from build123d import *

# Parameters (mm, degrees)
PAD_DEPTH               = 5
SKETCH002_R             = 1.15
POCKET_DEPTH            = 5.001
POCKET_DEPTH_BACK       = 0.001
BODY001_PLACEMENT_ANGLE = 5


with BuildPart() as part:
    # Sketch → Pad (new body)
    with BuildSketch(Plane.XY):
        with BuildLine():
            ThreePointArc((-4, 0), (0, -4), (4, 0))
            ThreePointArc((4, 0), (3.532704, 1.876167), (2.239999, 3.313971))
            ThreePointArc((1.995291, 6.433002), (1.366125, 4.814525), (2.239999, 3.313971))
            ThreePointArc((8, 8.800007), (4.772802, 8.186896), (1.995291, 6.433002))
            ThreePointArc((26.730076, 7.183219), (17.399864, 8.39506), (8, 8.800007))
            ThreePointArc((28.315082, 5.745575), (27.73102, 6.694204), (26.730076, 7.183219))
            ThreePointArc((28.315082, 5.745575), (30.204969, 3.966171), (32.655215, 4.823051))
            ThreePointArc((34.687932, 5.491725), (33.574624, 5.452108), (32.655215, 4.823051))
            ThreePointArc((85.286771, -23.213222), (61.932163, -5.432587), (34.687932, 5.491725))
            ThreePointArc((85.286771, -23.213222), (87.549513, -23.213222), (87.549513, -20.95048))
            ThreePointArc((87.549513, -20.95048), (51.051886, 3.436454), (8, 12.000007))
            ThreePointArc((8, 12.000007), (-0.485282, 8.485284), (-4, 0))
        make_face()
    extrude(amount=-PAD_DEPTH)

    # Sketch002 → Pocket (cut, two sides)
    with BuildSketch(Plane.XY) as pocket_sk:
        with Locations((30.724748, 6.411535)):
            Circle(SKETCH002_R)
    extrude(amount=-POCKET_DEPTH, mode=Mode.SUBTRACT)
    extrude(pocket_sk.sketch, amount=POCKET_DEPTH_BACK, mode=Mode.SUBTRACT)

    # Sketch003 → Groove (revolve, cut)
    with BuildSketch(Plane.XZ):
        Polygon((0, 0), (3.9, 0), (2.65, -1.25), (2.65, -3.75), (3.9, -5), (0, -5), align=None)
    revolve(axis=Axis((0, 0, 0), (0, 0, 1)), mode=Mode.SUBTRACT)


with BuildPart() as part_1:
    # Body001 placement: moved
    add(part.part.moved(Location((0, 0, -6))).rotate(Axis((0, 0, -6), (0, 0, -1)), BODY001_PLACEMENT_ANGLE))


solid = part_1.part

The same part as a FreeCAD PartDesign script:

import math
import FreeCAD as App
import Part
import Sketcher
from FreeCAD import Vector
Q = App.Units.Quantity


def add_polygon(sketch, points):
    """Adds a closed chain of lines whose ends are joined by coincident constraints."""
    first, n = sketch.GeometryCount, len(points)
    for a, b in zip(points, points[1:] + points[:1]):
        sketch.addGeometry(Part.LineSegment(App.Vector(*a, 0), App.Vector(*b, 0)), False)
    for i in range(n):
        sketch.addConstraint(Sketcher.Constraint("Coincident", first + i, 2, first + (i + 1) % n, 1))

doc = App.newDocument("Part")
body = doc.addObject("PartDesign::Body", "Body")

# Sketch on XY plane
sketch1 = body.newObject("Sketcher::SketchObject", "Sketch")
sketch1.AttachmentSupport = (doc.getObject("XY_Plane"), [""])
sketch1.MapMode = "FlatFace"
sketch1.addGeometry(Part.ArcOfCircle(Part.Circle(Vector(0, 0, 0), Vector(0, 0, 1), 4), math.radians(180), math.radians(360)), False)
sketch1.addGeometry(Part.ArcOfCircle(Part.Circle(Vector(0.000001, 0, 0), Vector(0, 0, 1), 3.999999), math.radians(-0.000002), math.radians(55.944224)), False)
sketch1.addGeometry(Part.ArcOfCircle(Part.Circle(Vector(3.359998, 4.970957, 0), Vector(0, 0, 1), 2), math.radians(133.027826), math.radians(235.944239)), False)
sketch1.addGeometry(Part.ArcOfCircle(Part.Circle(Vector(8.000009, -0.000006, 0), Vector(0, 0, 1), 8.800013), math.radians(90.000058), math.radians(133.027812)), False)
sketch1.addGeometry(Part.ArcOfCircle(Part.Circle(Vector(8.000004, -100.499914, 0), Vector(0, 0, 1), 109.299921), math.radians(80.132865), math.radians(90.000002)), False)
sketch1.addGeometry(Part.ArcOfCircle(Part.Circle(Vector(26.387349, 5.212803, 0), Vector(0, 0, 1), 2), math.radians(15.449324), math.radians(80.132891)), False)
sketch1.addGeometry(Part.ArcOfCircle(Part.Circle(Vector(30.724748, 6.41154, 0), Vector(0, 0, 1), 2.5), math.radians(-164.550674), math.radians(-39.449333)), False)
sketch1.addGeometry(Part.ArcOfCircle(Part.Circle(Vector(34.199589, 3.552263, 0), Vector(0, 0, 1), 1.999998), math.radians(75.867104), math.radians(140.550734)), False)
sketch1.addGeometry(Part.ArcOfCircle(Part.Circle(Vector(7.999994, -100.500002, 0), Vector(0, 0, 1), 109.30001), math.radians(45.000001), math.radians(75.867128)), False)
sketch1.addGeometry(Part.ArcOfCircle(Part.Circle(Vector(86.418142, -22.081851, 0), Vector(0, 0, 1), 1.6), math.radians(-135), math.radians(45)), False)
sketch1.addGeometry(Part.ArcOfCircle(Part.Circle(Vector(7.999998, -100.499999, 0), Vector(0, 0, 1), 112.500006), math.radians(45.000001), math.radians(89.999999)), False)
sketch1.addGeometry(Part.ArcOfCircle(Part.Circle(Vector(8.000006, 0.000001, 0), Vector(0, 0, 1), 12.000006), math.radians(90.000031), math.radians(180.000003)), False)
sketch1.addConstraint(Sketcher.Constraint("Coincident", 0, 2, 1, 1))
sketch1.addConstraint(Sketcher.Constraint("Coincident", 1, 2, 2, 2))
sketch1.addConstraint(Sketcher.Constraint("Coincident", 2, 1, 3, 2))
sketch1.addConstraint(Sketcher.Constraint("Coincident", 3, 1, 4, 2))
sketch1.addConstraint(Sketcher.Constraint("Coincident", 4, 1, 5, 2))
sketch1.addConstraint(Sketcher.Constraint("Coincident", 5, 1, 6, 1))
sketch1.addConstraint(Sketcher.Constraint("Coincident", 6, 2, 7, 2))
sketch1.addConstraint(Sketcher.Constraint("Coincident", 7, 1, 8, 2))
sketch1.addConstraint(Sketcher.Constraint("Coincident", 8, 1, 9, 1))
sketch1.addConstraint(Sketcher.Constraint("Coincident", 9, 2, 10, 1))
sketch1.addConstraint(Sketcher.Constraint("Coincident", 10, 2, 11, 1))
sketch1.addConstraint(Sketcher.Constraint("Coincident", 11, 2, 0, 1))
sketch1.addConstraint(Sketcher.Constraint("Coincident", 0, 3, -1, 1))
sketch1.addConstraint(Sketcher.Constraint("Coincident", 1, 3, -1, 1))
sketch1.addConstraint(Sketcher.Constraint("Coincident", 10, 3, 8, 3))
sketch1.addConstraint(Sketcher.Constraint("Coincident", 11, 3, 3, 3))
sketch1.addConstraint(Sketcher.Constraint("PointOnObject", 11, 3, -1))
sketch1.addConstraint(Sketcher.Constraint("PointOnObject", 0, 2, -1))
sketch1.addConstraint(Sketcher.Constraint("PointOnObject", 11, 2, -1))
sketch1.addConstraint(Sketcher.Constraint("Radius", 0, Q("4 mm")))
sketch1.addConstraint(Sketcher.Constraint("Radius", 2, Q("2 mm")))
sketch1.addConstraint(Sketcher.Constraint("Radius", 5, Q("2 mm")))
sketch1.addConstraint(Sketcher.Constraint("Radius", 7, Q("1.999998 mm")))
sketch1.addConstraint(Sketcher.Constraint("Radius", 6, Q("2.5 mm")))
sketch1.addConstraint(Sketcher.Constraint("Radius", 9, Q("1.6 mm")))
sketch1.addConstraint(Sketcher.Constraint("DistanceX", -1, 1, 3, 1, Q("8 mm")))
sketch1.addConstraint(Sketcher.Constraint("DistanceX", -1, 1, 10, 2, Q("8 mm")))
sketch1.addConstraint(Sketcher.Constraint("DistanceY", 8, 3, -1, 1, Q("100.500002 mm")))
sketch1.addConstraint(Sketcher.Constraint("DistanceY", 3, 1, 10, 2, Q("3.2 mm")))
sketch1.addConstraint(Sketcher.Constraint("DistanceX", -1, 1, 2, 3, Q("3.359998 mm")))
sketch1.addConstraint(Sketcher.Constraint("DistanceX", -1, 1, 1, 2, Q("2.239999 mm")))
sketch1.addConstraint(Sketcher.Constraint("Radius", 4, Q("109.299921 mm")))
sketch1.addConstraint(Sketcher.Constraint("DistanceY", 1, 3, 2, 1, Q("6.433002 mm")))
sketch1.addConstraint(Sketcher.Constraint("DistanceX", 5, 3, 6, 3, Q("4.337399 mm")))
sketch1.addConstraint(Sketcher.Constraint("DistanceX", -1, 1, 5, 3, Q("26.387349 mm")))
sketch1.addConstraint(Sketcher.Constraint("DistanceY", -1, 1, 6, 3, Q("6.41154 mm")))
sketch1.addConstraint(Sketcher.Constraint("DistanceX", -1, 1, 7, 3, Q("34.199589 mm")))
sketch1.addConstraint(Sketcher.Constraint("DistanceY", 9, 3, -1, 1, Q("22.081851 mm")))
sketch1.addConstraint(Sketcher.Constraint("DistanceY", -1, 1, 4, 1, Q("7.183219 mm")))
sketch1.addConstraint(Sketcher.Constraint("DistanceY", -1, 1, 6, 2, Q("4.823051 mm")))
sketch1.addConstraint(Sketcher.Constraint("DistanceX", -1, 1, 8, 1, Q("85.286771 mm")))
sketch1.addConstraint(Sketcher.Constraint("DistanceY", 9, 2, -1, 1, Q("20.95048 mm")))
sketch1.addConstraint(Sketcher.Constraint("DistanceY", 5, 1, 3, 1, Q("3.054432 mm")))
sketch1.addConstraint(Sketcher.Constraint("DistanceX", 5, 1, 7, 1, Q("6.37285 mm")))
pad1 = body.newObject("PartDesign::Pad", "Pad")
pad1.Profile = sketch1
pad1.Length = 5
pad1.Reversed = True

# Sketch on XY plane
sketch2 = body.newObject("Sketcher::SketchObject", "Sketch001")
sketch2.AttachmentSupport = (doc.getObject("XY_Plane"), [""])
sketch2.MapMode = "FlatFace"
sketch2.addGeometry(Part.Circle(Vector(30.7, 6.4, 0), Vector(0, 0, 1), 1.1), False)
sketch2.addConstraint(Sketcher.Constraint("Diameter", 0, Q("2.3 mm")))
sketch2.addConstraint(Sketcher.Constraint("DistanceX", -1, 1, 0, 3, Q("30.724748 mm")))
sketch2.addConstraint(Sketcher.Constraint("DistanceY", -1, 1, 0, 3, Q("6.411535 mm")))
pocket1 = body.newObject("PartDesign::Pocket", "Pocket")
pocket1.Profile = sketch2
pocket1.Type = "ThroughAll"
pocket1.Midplane = True

# Sketch on XZ plane
sketch3 = body.newObject("Sketcher::SketchObject", "Sketch002")
sketch3.AttachmentSupport = (doc.getObject("XZ_Plane"), [""])
sketch3.MapMode = "FlatFace"
add_polygon(sketch3, [(3.9, 0), (0, 0), (0, -5), (3.9, -5), (2.6, -3.8), (2.6, -1.2)])  # lines 0-5
sketch3.addConstraint(Sketcher.Constraint("Horizontal", 0))
sketch3.addConstraint(Sketcher.Constraint("Vertical", 1))
sketch3.addConstraint(Sketcher.Constraint("Horizontal", 2))
sketch3.addConstraint(Sketcher.Constraint("Vertical", 4))
sketch3.addConstraint(Sketcher.Constraint("Coincident", 0, 2, -1, 1))
sketch3.addConstraint(Sketcher.Constraint("Perpendicular", 3, 5))
sketch3.addConstraint(Sketcher.Constraint("Vertical", 2, 2, 5, 2))
sketch3.addConstraint(Sketcher.Constraint("Equal", 3, 5))
sketch3.addConstraint(Sketcher.Constraint("DistanceY", 1, 2, 1, 1, Q("5 mm")))
sketch3.addConstraint(Sketcher.Constraint("DistanceX", 0, 2, 0, 1, Q("3.9 mm")))
sketch3.addConstraint(Sketcher.Constraint("DistanceY", 4, 1, 4, 2, Q("2.5 mm")))
groove = body.newObject("PartDesign::Groove", "Groove")
groove.Profile = sketch3
groove.ReferenceAxis = (sketch3, ["V_Axis"])
groove.Angle = 360
body2 = doc.addObject("PartDesign::Body", "Body001")
doc.recompute()

body.Placement = App.Placement(Vector(0, 0, -6), App.Rotation(Vector(0, 0, -1), 5))
boolean = body2.newObject("PartDesign::Boolean", "Boolean")
boolean.Type = "Fuse"
boolean.addObjects([body])

doc.recompute()
